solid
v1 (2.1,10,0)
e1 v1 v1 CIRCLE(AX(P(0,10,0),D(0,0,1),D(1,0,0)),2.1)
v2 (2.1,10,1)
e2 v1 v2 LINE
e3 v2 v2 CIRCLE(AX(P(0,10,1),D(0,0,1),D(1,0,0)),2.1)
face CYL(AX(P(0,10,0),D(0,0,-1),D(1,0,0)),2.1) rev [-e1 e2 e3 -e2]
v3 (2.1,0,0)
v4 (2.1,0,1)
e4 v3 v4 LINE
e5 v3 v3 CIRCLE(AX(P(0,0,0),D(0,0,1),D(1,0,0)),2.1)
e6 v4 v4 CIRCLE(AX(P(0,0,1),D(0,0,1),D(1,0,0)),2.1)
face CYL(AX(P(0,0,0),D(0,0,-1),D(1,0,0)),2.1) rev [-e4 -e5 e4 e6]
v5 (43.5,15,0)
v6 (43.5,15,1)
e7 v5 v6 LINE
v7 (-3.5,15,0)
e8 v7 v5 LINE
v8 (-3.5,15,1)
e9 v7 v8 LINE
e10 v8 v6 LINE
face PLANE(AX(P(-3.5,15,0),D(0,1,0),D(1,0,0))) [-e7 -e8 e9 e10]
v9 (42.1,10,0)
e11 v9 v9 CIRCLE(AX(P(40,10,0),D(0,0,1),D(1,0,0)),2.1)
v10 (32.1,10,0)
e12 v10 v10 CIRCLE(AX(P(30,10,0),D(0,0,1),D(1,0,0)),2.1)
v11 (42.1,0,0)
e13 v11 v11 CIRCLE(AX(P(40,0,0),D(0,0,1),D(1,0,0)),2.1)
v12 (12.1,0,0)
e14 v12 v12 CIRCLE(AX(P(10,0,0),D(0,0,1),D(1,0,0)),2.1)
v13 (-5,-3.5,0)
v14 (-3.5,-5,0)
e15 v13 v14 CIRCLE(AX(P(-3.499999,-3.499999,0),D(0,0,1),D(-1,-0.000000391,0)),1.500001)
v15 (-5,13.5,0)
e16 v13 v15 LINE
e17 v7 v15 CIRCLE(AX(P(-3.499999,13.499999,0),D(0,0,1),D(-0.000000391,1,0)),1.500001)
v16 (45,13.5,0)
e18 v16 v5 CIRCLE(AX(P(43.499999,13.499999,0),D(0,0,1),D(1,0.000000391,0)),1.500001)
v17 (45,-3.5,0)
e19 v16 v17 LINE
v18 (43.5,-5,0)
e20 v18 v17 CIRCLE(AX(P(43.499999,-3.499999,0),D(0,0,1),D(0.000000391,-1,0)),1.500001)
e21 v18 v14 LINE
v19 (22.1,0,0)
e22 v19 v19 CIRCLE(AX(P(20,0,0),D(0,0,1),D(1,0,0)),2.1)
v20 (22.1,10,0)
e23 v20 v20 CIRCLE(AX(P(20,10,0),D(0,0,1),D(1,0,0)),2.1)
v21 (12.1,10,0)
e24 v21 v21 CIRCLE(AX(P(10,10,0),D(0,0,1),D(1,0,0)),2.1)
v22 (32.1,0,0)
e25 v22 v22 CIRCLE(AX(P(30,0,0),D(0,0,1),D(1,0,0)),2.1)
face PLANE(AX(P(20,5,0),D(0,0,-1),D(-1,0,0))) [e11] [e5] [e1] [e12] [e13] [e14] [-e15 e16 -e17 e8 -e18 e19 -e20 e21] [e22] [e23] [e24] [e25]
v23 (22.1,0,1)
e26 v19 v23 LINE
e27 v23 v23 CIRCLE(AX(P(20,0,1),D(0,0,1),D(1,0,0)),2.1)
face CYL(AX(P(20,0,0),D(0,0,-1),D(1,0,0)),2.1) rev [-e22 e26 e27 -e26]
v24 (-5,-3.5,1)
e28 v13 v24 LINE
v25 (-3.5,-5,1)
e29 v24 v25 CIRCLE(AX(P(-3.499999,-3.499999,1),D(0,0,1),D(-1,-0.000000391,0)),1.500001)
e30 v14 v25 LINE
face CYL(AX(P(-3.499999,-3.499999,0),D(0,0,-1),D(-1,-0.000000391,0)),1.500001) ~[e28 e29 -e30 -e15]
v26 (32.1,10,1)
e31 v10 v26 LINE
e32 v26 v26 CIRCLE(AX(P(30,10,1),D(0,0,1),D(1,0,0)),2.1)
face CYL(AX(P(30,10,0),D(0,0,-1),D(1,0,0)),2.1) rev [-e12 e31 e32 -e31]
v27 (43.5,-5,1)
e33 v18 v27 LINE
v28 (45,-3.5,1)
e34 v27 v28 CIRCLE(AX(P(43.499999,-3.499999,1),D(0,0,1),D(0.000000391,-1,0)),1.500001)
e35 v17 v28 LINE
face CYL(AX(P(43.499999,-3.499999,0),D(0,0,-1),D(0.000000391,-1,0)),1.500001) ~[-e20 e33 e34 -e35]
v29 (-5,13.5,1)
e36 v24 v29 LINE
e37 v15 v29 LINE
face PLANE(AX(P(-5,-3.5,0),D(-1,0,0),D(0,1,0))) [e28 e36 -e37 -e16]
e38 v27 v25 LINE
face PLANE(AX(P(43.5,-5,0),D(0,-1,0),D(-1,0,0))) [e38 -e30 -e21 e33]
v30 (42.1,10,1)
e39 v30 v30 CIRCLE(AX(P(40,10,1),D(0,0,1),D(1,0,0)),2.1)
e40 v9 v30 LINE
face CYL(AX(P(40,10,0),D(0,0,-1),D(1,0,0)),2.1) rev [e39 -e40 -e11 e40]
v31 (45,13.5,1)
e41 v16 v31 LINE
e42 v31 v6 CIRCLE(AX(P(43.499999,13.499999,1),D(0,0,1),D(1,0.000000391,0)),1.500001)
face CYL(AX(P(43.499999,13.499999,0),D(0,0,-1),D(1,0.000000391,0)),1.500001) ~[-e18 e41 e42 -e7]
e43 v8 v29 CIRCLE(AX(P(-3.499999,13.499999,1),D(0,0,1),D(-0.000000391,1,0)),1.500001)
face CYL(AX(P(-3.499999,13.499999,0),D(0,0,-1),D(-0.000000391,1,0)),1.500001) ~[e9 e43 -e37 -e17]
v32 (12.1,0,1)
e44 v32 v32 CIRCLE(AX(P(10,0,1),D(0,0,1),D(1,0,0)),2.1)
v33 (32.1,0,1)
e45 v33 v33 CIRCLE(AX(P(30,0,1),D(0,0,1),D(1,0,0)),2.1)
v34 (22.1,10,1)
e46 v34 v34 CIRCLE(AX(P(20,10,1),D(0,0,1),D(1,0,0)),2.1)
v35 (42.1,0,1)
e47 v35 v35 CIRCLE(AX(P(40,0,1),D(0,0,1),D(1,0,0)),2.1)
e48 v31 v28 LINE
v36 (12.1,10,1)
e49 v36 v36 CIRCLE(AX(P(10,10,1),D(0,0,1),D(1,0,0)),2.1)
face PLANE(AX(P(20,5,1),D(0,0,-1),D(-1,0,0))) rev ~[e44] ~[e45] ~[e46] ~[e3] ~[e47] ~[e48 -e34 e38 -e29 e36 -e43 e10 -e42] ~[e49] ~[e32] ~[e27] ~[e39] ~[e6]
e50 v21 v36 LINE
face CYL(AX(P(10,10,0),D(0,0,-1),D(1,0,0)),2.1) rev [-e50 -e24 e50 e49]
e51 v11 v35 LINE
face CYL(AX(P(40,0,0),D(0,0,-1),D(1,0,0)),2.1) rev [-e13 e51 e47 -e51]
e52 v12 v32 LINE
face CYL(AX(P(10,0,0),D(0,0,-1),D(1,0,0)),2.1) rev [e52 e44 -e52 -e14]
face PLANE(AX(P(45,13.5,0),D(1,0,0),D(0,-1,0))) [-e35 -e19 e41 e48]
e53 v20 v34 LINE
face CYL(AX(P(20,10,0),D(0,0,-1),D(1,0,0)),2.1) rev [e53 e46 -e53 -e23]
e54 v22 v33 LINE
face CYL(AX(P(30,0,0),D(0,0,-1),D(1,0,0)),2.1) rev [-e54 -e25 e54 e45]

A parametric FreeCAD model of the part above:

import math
import FreeCAD as App
import Part
import Sketcher

V = App.Vector

doc = App.newDocument("Part")
body = doc.addObject("PartDesign::Body", "Body")

# Sketch on XY plane
sketch1 = body.newObject("Sketcher::SketchObject", "Sketch")
sketch1.AttachmentSupport = (doc.getObject("XY_Plane"), [""])
sketch1.MapMode = "FlatFace"
sketch1.addGeometry(Part.LineSegment(V(43.5, 15, 0), V(-3.5, 15, 0)), False)
sketch1.addGeometry(Part.ArcOfCircle(Part.Circle(V(-3.5, 13.5, 0), V(0, 0, 1), 1.5), math.radians(90), math.radians(180)), False)
sketch1.addGeometry(Part.LineSegment(V(-5, 13.5, 0), V(-5, -3.5, 0)), False)
sketch1.addGeometry(Part.ArcOfCircle(Part.Circle(V(-3.5, -3.5, 0), V(0, 0, 1), 1.5), math.radians(-180), math.radians(-90)), False)
sketch1.addGeometry(Part.LineSegment(V(-3.5, -5, 0), V(43.5, -5, 0)), False)
sketch1.addGeometry(Part.ArcOfCircle(Part.Circle(V(43.5, -3.5, 0), V(0, 0, 1), 1.5), math.radians(-90), math.radians(0)), False)
sketch1.addGeometry(Part.LineSegment(V(45, -3.5, 0), V(45, 13.5, 0)), False)
sketch1.addGeometry(Part.ArcOfCircle(Part.Circle(V(43.5, 13.5, 0), V(0, 0, 1), 1.5), math.radians(0), math.radians(90)), False)
sketch1.addGeometry(Part.Circle(V(40, 0, 0), V(0, 0, 1), 2.1), False)
sketch1.addGeometry(Part.Circle(V(30, 0, 0), V(0, 0, 1), 2.1), False)
sketch1.addGeometry(Part.Circle(V(20, 0, 0), V(0, 0, 1), 2.1), False)
sketch1.addGeometry(Part.Circle(V(10, 0, 0), V(0, 0, 1), 2.1), False)
sketch1.addGeometry(Part.Circle(V(0, 0, 0), V(0, 0, 1), 2.1), False)
sketch1.addGeometry(Part.Circle(V(40, 10, 0), V(0, 0, 1), 2.1), False)
sketch1.addGeometry(Part.Circle(V(30, 10, 0), V(0, 0, 1), 2.1), False)
sketch1.addGeometry(Part.Circle(V(20, 10, 0), V(0, 0, 1), 2.1), False)
sketch1.addGeometry(Part.Circle(V(10, 10, 0), V(0, 0, 1), 2.1), False)
sketch1.addGeometry(Part.Circle(V(0, 10, 0), V(0, 0, 1), 2.1), False)
sketch1.addConstraint(Sketcher.Constraint("Tangent", 0, 2, 1, 1))
sketch1.addConstraint(Sketcher.Constraint("Tangent", 1, 2, 2, 1))
sketch1.addConstraint(Sketcher.Constraint("Tangent", 2, 2, 3, 1))
sketch1.addConstraint(Sketcher.Constraint("Tangent", 3, 2, 4, 1))
sketch1.addConstraint(Sketcher.Constraint("Tangent", 4, 2, 5, 1))
sketch1.addConstraint(Sketcher.Constraint("Tangent", 5, 2, 6, 1))
sketch1.addConstraint(Sketcher.Constraint("Tangent", 6, 2, 7, 1))
sketch1.addConstraint(Sketcher.Constraint("Tangent", 7, 2, 0, 1))
sketch1.addConstraint(Sketcher.Constraint("Horizontal", 0))
sketch1.addConstraint(Sketcher.Constraint("Vertical", 2))
sketch1.addConstraint(Sketcher.Constraint("Horizontal", 4))
sketch1.addConstraint(Sketcher.Constraint("Vertical", 6))
sketch1.addConstraint(Sketcher.Constraint("Coincident", 12, 3, -1, 1))
sketch1.addConstraint(Sketcher.Constraint("Equal", 1, 3))
sketch1.addConstraint(Sketcher.Constraint("Equal", 3, 5))
sketch1.addConstraint(Sketcher.Constraint("Equal", 5, 7))
sketch1.addConstraint(Sketcher.Constraint("Equal", 8, 9))
sketch1.addConstraint(Sketcher.Constraint("Equal", 9, 10))
sketch1.addConstraint(Sketcher.Constraint("Equal", 10, 11))
sketch1.addConstraint(Sketcher.Constraint("Equal", 11, 12))
sketch1.addConstraint(Sketcher.Constraint("Equal", 12, 13))
sketch1.addConstraint(Sketcher.Constraint("Equal", 13, 14))
sketch1.addConstraint(Sketcher.Constraint("Equal", 14, 15))
sketch1.addConstraint(Sketcher.Constraint("Equal", 15, 16))
sketch1.addConstraint(Sketcher.Constraint("Equal", 16, 17))
sketch1.addConstraint(Sketcher.Constraint("PointOnObject", 8, 3, -1))
sketch1.addConstraint(Sketcher.Constraint("PointOnObject", 9, 3, -1))
sketch1.addConstraint(Sketcher.Constraint("PointOnObject", 10, 3, -1))
sketch1.addConstraint(Sketcher.Constraint("PointOnObject", 11, 3, -1))
sketch1.addConstraint(Sketcher.Constraint("PointOnObject", 17, 3, -2))
sketch1.addConstraint(Sketcher.Constraint("Horizontal", 13, 3, 14, 3))
sketch1.addConstraint(Sketcher.Constraint("Horizontal", 14, 3, 15, 3))
sketch1.addConstraint(Sketcher.Constraint("Horizontal", 15, 3, 16, 3))
sketch1.addConstraint(Sketcher.Constraint("Horizontal", 16, 3, 17, 3))
sketch1.addConstraint(Sketcher.Constraint("Vertical", 8, 3, 13, 3))
sketch1.addConstraint(Sketcher.Constraint("Vertical", 9, 3, 14, 3))
sketch1.addConstraint(Sketcher.Constraint("Vertical", 10, 3, 15, 3))
sketch1.addConstraint(Sketcher.Constraint("Vertical", 11, 3, 16, 3))
sketch1.addConstraint(Sketcher.Constraint("Diameter", 8, 4.2))
sketch1.addConstraint(Sketcher.Constraint("Radius", 1, 1.500001))
sketch1.addConstraint(Sketcher.Constraint("DistanceX", 0, 2, 0, 1, 47.0))
sketch1.addConstraint(Sketcher.Constraint("DistanceY", 2, 2, 2, 1, 17.0))
sketch1.addConstraint(Sketcher.Constraint("DistanceX", -1, 1, 8, 3, 40.0))
sketch1.addConstraint(Sketcher.Constraint("DistanceX", -1, 1, 9, 3, 30.0))
sketch1.addConstraint(Sketcher.Constraint("DistanceX", -1, 1, 10, 3, 20.0))
sketch1.addConstraint(Sketcher.Constraint("DistanceX", -1, 1, 11, 3, 10.0))
sketch1.addConstraint(Sketcher.Constraint("DistanceY", -1, 1, 13, 3, 10.0))
sketch1.addConstraint(Sketcher.Constraint("DistanceY", -1, 1, 0, 2, 15.0))
sketch1.addConstraint(Sketcher.Constraint("DistanceX", 1, 2, -1, 1, 5.0))
pad1 = body.newObject("PartDesign::Pad", "Pad")
pad1.Profile = sketch1
pad1.Length = 1

doc.recompute()
